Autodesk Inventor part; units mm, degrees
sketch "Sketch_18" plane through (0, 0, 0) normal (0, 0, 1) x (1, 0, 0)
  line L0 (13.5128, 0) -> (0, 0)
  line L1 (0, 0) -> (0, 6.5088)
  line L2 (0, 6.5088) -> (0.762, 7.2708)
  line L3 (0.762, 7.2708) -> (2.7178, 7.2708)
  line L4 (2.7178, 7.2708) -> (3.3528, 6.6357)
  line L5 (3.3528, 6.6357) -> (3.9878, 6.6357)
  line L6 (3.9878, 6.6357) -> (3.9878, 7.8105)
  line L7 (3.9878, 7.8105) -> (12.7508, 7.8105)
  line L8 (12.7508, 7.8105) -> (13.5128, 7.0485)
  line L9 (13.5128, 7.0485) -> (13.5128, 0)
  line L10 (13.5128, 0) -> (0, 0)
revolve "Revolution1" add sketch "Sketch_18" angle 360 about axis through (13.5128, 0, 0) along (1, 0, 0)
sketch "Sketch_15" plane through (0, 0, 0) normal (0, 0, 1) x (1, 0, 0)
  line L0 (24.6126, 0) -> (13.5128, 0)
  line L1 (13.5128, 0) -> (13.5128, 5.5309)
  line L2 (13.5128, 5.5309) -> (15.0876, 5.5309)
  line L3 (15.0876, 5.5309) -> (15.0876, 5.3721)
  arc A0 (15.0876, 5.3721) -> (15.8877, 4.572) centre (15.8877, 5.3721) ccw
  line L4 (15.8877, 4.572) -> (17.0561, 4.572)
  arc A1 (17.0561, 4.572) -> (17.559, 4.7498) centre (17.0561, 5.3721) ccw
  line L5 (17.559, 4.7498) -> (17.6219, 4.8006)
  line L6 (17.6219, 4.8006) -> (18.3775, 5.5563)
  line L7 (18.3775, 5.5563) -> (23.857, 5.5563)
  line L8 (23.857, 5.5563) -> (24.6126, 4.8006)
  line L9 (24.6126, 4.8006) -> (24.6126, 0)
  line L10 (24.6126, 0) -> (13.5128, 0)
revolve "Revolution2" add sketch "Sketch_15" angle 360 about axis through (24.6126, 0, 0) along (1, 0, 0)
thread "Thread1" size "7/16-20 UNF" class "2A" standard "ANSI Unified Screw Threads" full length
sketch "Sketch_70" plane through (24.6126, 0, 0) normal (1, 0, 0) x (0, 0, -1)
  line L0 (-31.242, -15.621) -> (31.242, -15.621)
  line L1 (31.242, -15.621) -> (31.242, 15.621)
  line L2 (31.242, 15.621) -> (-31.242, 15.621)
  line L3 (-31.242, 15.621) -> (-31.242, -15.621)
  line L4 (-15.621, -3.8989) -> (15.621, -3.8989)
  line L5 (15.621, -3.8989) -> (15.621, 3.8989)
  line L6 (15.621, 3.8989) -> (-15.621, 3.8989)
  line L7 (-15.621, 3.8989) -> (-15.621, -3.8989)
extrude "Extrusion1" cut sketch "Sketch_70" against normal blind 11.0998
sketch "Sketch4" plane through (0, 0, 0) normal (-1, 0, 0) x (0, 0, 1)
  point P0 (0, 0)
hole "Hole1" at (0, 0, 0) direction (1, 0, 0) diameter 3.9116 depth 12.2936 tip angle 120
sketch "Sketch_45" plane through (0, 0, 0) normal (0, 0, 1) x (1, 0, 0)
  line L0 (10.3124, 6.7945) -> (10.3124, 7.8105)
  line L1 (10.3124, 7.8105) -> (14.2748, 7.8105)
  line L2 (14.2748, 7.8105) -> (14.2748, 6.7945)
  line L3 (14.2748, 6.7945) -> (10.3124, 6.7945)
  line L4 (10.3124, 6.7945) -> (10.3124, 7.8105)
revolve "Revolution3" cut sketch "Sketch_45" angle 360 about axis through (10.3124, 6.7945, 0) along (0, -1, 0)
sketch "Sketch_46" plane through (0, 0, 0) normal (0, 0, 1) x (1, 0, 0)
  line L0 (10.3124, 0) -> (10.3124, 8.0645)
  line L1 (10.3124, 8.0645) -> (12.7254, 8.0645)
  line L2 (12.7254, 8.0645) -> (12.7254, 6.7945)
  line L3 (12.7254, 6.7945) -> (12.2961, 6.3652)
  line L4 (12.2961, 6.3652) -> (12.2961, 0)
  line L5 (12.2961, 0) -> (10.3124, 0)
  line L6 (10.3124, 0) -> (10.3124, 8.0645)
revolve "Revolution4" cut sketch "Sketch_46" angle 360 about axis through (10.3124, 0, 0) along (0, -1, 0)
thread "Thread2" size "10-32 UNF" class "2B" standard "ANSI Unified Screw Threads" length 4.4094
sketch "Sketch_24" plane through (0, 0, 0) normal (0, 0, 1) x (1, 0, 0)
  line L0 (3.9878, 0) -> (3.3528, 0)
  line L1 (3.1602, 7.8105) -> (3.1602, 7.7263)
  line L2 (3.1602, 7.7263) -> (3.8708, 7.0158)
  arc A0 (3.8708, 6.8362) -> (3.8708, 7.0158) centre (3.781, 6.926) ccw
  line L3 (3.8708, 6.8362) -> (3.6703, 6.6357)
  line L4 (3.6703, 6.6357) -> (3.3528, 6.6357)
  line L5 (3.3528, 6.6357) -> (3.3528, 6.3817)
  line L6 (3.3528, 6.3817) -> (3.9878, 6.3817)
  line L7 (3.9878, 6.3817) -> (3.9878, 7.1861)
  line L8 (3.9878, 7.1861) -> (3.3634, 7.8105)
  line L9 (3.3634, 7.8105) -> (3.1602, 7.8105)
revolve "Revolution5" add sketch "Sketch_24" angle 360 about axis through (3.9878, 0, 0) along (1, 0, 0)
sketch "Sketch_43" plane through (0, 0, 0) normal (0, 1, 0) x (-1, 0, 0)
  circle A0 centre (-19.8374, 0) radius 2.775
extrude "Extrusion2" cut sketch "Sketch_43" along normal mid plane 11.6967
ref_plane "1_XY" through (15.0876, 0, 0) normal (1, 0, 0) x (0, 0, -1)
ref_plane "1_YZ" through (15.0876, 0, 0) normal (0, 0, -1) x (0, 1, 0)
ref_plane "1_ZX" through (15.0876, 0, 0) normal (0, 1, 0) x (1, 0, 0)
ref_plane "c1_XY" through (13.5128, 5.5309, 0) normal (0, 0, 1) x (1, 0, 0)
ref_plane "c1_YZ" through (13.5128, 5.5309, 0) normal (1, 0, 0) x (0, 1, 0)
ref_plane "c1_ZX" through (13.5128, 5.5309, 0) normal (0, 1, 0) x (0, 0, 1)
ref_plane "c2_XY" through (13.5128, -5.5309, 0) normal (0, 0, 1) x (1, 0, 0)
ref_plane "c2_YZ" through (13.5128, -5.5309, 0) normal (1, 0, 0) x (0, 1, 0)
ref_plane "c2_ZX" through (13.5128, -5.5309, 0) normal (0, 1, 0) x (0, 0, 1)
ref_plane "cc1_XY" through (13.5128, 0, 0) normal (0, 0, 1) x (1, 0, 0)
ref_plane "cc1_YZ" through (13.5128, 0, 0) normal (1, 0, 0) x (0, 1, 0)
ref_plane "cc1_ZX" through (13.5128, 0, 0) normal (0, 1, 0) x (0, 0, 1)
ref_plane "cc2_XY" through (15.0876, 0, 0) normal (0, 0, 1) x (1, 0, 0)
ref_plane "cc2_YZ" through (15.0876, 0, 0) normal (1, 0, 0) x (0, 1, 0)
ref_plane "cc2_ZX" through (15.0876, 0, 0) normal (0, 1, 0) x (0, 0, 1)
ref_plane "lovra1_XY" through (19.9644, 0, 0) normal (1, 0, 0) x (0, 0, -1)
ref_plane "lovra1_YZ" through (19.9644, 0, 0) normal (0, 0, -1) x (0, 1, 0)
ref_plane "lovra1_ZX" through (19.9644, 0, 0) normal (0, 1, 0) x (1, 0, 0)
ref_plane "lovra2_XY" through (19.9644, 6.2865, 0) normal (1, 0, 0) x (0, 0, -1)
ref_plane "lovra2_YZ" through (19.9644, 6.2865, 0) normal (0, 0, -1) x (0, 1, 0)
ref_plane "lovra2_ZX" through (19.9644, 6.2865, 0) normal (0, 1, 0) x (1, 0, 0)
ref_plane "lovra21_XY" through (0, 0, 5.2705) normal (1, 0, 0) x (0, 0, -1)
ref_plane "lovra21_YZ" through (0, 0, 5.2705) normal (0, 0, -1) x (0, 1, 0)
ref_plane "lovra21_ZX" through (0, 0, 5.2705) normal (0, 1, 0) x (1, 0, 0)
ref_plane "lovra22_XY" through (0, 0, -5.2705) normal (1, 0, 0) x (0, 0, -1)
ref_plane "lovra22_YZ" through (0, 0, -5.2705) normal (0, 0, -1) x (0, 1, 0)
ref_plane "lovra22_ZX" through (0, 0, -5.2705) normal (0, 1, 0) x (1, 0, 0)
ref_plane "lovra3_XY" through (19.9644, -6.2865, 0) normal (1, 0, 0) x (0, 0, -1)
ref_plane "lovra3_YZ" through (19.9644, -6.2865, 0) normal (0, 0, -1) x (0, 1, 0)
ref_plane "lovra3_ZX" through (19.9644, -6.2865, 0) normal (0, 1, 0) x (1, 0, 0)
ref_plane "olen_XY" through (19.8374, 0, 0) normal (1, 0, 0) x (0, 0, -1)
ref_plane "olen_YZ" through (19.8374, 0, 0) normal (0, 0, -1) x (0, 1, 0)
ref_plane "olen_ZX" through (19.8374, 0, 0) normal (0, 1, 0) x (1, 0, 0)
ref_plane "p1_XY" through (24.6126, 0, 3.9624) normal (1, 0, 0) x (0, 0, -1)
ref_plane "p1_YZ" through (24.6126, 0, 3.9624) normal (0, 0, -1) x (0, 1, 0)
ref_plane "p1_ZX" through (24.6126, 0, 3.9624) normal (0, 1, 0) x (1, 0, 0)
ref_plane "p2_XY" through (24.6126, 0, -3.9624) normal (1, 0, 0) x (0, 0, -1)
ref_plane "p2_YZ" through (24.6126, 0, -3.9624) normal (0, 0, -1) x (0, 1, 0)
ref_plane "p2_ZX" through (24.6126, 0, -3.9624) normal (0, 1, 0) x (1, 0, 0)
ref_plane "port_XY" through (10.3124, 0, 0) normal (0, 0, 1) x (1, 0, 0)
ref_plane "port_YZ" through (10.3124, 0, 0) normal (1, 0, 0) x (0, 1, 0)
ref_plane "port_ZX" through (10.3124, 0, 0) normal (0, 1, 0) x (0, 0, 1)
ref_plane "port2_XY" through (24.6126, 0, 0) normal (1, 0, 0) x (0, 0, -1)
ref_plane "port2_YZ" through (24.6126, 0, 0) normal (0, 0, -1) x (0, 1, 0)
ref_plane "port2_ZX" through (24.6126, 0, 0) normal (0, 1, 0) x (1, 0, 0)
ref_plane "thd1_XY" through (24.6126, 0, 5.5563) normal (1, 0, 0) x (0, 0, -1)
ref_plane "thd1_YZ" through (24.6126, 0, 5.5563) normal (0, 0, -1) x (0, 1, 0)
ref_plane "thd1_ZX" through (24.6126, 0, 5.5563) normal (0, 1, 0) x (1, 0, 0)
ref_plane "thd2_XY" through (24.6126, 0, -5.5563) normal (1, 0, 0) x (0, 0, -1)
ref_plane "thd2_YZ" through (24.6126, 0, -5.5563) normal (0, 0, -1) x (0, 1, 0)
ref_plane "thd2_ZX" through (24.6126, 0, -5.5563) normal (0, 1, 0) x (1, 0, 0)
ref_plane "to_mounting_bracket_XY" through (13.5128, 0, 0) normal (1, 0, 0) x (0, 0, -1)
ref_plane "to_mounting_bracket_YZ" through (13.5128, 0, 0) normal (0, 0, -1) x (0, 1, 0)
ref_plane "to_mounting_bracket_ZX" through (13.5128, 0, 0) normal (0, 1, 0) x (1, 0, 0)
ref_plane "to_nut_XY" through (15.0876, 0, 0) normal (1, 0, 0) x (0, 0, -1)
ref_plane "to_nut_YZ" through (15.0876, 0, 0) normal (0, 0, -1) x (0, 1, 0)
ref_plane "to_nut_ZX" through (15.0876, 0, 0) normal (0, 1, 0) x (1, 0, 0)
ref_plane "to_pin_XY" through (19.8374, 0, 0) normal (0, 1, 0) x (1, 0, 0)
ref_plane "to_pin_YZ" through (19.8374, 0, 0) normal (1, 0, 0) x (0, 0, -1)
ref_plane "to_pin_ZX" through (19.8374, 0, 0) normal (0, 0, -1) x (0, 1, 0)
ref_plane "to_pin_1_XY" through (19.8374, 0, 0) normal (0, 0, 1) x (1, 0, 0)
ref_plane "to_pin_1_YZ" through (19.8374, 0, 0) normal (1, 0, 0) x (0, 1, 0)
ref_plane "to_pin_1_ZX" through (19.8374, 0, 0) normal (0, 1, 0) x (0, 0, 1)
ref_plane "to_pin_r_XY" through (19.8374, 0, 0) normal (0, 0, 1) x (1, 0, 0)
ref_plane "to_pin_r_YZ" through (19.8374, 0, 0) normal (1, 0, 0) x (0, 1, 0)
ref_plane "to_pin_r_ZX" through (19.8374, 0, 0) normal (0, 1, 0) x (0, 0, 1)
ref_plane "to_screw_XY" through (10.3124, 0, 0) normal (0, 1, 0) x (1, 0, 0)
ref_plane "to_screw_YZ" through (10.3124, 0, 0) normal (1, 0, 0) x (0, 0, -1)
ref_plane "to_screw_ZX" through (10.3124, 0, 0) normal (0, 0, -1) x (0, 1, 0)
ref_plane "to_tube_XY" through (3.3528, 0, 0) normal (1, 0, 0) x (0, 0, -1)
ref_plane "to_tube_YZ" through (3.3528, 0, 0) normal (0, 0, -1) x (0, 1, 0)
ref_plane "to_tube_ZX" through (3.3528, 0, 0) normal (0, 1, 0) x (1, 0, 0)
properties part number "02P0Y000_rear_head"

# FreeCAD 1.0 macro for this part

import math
import FreeCAD as App
import Part
import Sketcher
from FreeCAD import Vector
Q = App.Units.Quantity

doc = App.newDocument("Part")
body = doc.addObject("PartDesign::Body", "Body")

sketch1 = doc.addObject("Sketcher::SketchObject", "Sketch")
body.addObject(sketch1)
sketch1.AttachmentSupport = (doc.XY_Plane, [""])
sketch1.MapMode = "FlatFace"
sketch1.addGeometry(Part.LineSegment(Vector(0, 0, 0), Vector(13.5, 0, 0)), False)
sketch1.addGeometry(Part.LineSegment(Vector(13.5, 0, 0), Vector(13.5, 7, 0)), False)
sketch1.addGeometry(Part.LineSegment(Vector(13.5, 7, 0), Vector(12.8, 7.8, 0)), False)
sketch1.addGeometry(Part.LineSegment(Vector(12.8, 7.8, 0), Vector(4, 7.8, 0)), False)
sketch1.addGeometry(Part.LineSegment(Vector(4, 7.8, 0), Vector(4, 6.6, 0)), False)
sketch1.addGeometry(Part.LineSegment(Vector(4, 6.6, 0), Vector(3.4, 6.6, 0)), False)
sketch1.addGeometry(Part.LineSegment(Vector(3.4, 6.6, 0), Vector(2.7, 7.3, 0)), False)
sketch1.addGeometry(Part.LineSegment(Vector(2.7, 7.3, 0), Vector(0.8, 7.3, 0)), False)
sketch1.addGeometry(Part.LineSegment(Vector(0.8, 7.3, 0), Vector(0, 6.5, 0)), False)
sketch1.addGeometry(Part.LineSegment(Vector(0, 6.5, 0), Vector(0, 0, 0)), False)
sketch1.addConstraint(Sketcher.Constraint("Coincident", 0, 2, 1, 1))
sketch1.addConstraint(Sketcher.Constraint("Coincident", 1, 2, 2, 1))
sketch1.addConstraint(Sketcher.Constraint("Coincident", 2, 2, 3, 1))
sketch1.addConstraint(Sketcher.Constraint("Coincident", 3, 2, 4, 1))
sketch1.addConstraint(Sketcher.Constraint("Coincident", 4, 2, 5, 1))
sketch1.addConstraint(Sketcher.Constraint("Coincident", 5, 2, 6, 1))
sketch1.addConstraint(Sketcher.Constraint("Coincident", 6, 2, 7, 1))
sketch1.addConstraint(Sketcher.Constraint("Coincident", 7, 2, 8, 1))
sketch1.addConstraint(Sketcher.Constraint("Coincident", 8, 2, 9, 1))
sketch1.addConstraint(Sketcher.Constraint("Coincident", 9, 2, 0, 1))
sketch1.addConstraint(Sketcher.Constraint("Horizontal", 0))
sketch1.addConstraint(Sketcher.Constraint("Vertical", 1))
sketch1.addConstraint(Sketcher.Constraint("Horizontal", 3))
sketch1.addConstraint(Sketcher.Constraint("Vertical", 4))
sketch1.addConstraint(Sketcher.Constraint("Horizontal", 5))
sketch1.addConstraint(Sketcher.Constraint("Horizontal", 7))
sketch1.addConstraint(Sketcher.Constraint("Vertical", 9))
sketch1.addConstraint(Sketcher.Constraint("Coincident", 9, 2, -1, 1))
sketch1.addConstraint(Sketcher.Constraint("Parallel", 2, 6))
sketch1.addConstraint(Sketcher.Constraint("Perpendicular", 6, 8))
sketch1.addConstraint(Sketcher.Constraint("Equal", 2, 8))
sketch1.addConstraint(Sketcher.Constraint("Angle", 2, Q("135 deg")))
sketch1.addConstraint(Sketcher.Constraint("DistanceX", 5, 2, 1, 2, Q("0.4 in")))
sketch1.addConstraint(Sketcher.Constraint("DistanceX", 0, 1, 0, 2, Q("0.532 in")))
sketch1.addConstraint(Sketcher.Constraint("DistanceX", 3, 2, 3, 1, Q("0.345 in")))
sketch1.addConstraint(Sketcher.Constraint("DistanceX", 5, 2, 5, 1, Q("0.025 in")))
sketch1.addConstraint(Sketcher.Constraint("DistanceX", 7, 2, 7, 1, Q("0.077 in")))
sketch1.addConstraint(Sketcher.Constraint("DistanceY", 1, 1, 1, 2, Q("0.2775 in")))
sketch1.addConstraint(Sketcher.Constraint("DistanceY", 4, 2, 4, 1, 1.1748))
revolution = doc.addObject("PartDesign::Revolution", "Revolution")
body.addObject(revolution)
revolution.Profile = sketch1
revolution.ReferenceAxis = (sketch1, ["H_Axis"])
revolution.Angle = 360

sketch2 = doc.addObject("Sketcher::SketchObject", "Sketch001")
body.addObject(sketch2)
sketch2.AttachmentSupport = (doc.XY_Plane, [""])
sketch2.MapMode = "FlatFace"
sketch2.addGeometry(Part.LineSegment(Vector(13.51, 0, 0), Vector(24.61, 0, 0)), False)
sketch2.addGeometry(Part.LineSegment(Vector(24.61, 0, 0), Vector(24.61, 4.8, 0)), False)
sketch2.addGeometry(Part.LineSegment(Vector(24.61, 4.8, 0), Vector(23.86, 5.56, 0)), False)
sketch2.addGeometry(Part.LineSegment(Vector(23.86, 5.56, 0), Vector(18.38, 5.56, 0)), False)
sketch2.addGeometry(Part.LineSegment(Vector(18.38, 5.56, 0), Vector(17.62, 4.8, 0)), False)
sketch2.addGeometry(Part.LineSegment(Vector(17.62, 4.8, 0), Vector(17.56, 4.75, 0)), False)
sketch2.addGeometry(Part.ArcOfCircle(Part.Circle(Vector(17.06, 5.37, 0), Vector(0, 0, 1), 0.8), math.radians(-90), math.radians(-51)), False)
sketch2.addGeometry(Part.LineSegment(Vector(17.06, 4.57, 0), Vector(15.89, 4.57, 0)), False)
sketch2.addGeometry(Part.ArcOfCircle(Part.Circle(Vector(15.89, 5.37, 0), Vector(0, 0, 1), 0.8), math.radians(180), math.radians(270)), False)
sketch2.addGeometry(Part.LineSegment(Vector(15.09, 5.37, 0), Vector(15.09, 5.53, 0)), False)
sketch2.addGeometry(Part.LineSegment(Vector(15.09, 5.53, 0), Vector(13.51, 5.53, 0)), False)
sketch2.addGeometry(Part.LineSegment(Vector(13.51, 5.53, 0), Vector(13.51, 0, 0)), False)
sketch2.addConstraint(Sketcher.Constraint("Coincident", 0, 2, 1, 1))
sketch2.addConstraint(Sketcher.Constraint("Coincident", 1, 2, 2, 1))
sketch2.addConstraint(Sketcher.Constraint("Coincident", 2, 2, 3, 1))
sketch2.addConstraint(Sketcher.Constraint("Coincident", 3, 2, 4, 1))
sketch2.addConstraint(Sketcher.Constraint("Coincident", 4, 2, 5, 1))
sketch2.addConstraint(Sketcher.Constraint("Tangent", 5, 2, 6, 2))
sketch2.addConstraint(Sketcher.Constraint("Tangent", 6, 1, 7, 1))
sketch2.addConstraint(Sketcher.Constraint("Tangent", 7, 2, 8, 2))
sketch2.addConstraint(Sketcher.Constraint("Tangent", 8, 1, 9, 1))
sketch2.addConstraint(Sketcher.Constraint("Coincident", 9, 2, 10, 1))
sketch2.addConstraint(Sketcher.Constraint("Coincident", 10, 2, 11, 1))
sketch2.addConstraint(Sketcher.Constraint("Coincident", 11, 2, 0, 1))
sketch2.addConstraint(Sketcher.Constraint("Horizontal", 0))
sketch2.addConstraint(Sketcher.Constraint("Vertical", 1))
sketch2.addConstraint(Sketcher.Constraint("Horizontal", 3))
sketch2.addConstraint(Sketcher.Constraint("Horizontal", 7))
sketch2.addConstraint(Sketcher.Constraint("Vertical", 9))
sketch2.addConstraint(Sketcher.Constraint("Horizontal", 10))
sketch2.addConstraint(Sketcher.Constraint("Vertical", 11))
sketch2.addConstraint(Sketcher.Constraint("Equal", 6, 8))
sketch2.addConstraint(Sketcher.Constraint("PointOnObject", 0, 2, -1))
sketch2.addConstraint(Sketcher.Constraint("Perpendicular", 2, 4))
sketch2.addConstraint(Sketcher.Constraint("Horizontal", 1, 2, 4, 2))
sketch2.addConstraint(Sketcher.Constraint("Equal", 2, 4))
sketch2.addConstraint(Sketcher.Constraint("Radius", 6, Q("0.0315 in")))
sketch2.addConstraint(Sketcher.Constraint("DistanceX", 0, 1, 0, 2, Q("0.437 in")))
sketch2.addConstraint(Sketcher.Constraint("DistanceX", 7, 2, 7, 1, Q("0.046 in")))
sketch2.addConstraint(Sketcher.Constraint("DistanceX", 10, 2, 10, 1, Q("0.062 in")))
sketch2.addConstraint(Sketcher.Constraint("DistanceY", 1, 1, 1, 2, Q("0.189 in")))
sketch2.addConstraint(Sketcher.Constraint("DistanceY", -1, 1, 6, 1, Q("0.18 in")))
sketch2.addConstraint(Sketcher.Constraint("DistanceX", -1, 1, 0, 2, Q("0.969 in")))
sketch2.addConstraint(Sketcher.Constraint("DistanceY", -1, 1, 2, 2, Q("0.218752 in")))
sketch2.addConstraint(Sketcher.Constraint("DistanceY", -1, 1, 5, 2, Q("0.187 in")))
sketch2.addConstraint(Sketcher.Constraint("DistanceY", 9, 1, 9, 2, 0.1588))
revolution2 = doc.addObject("PartDesign::Revolution", "Revolution001")
body.addObject(revolution2)
revolution2.Profile = sketch2
revolution2.ReferenceAxis = (sketch2, ["H_Axis"])
revolution2.Angle = 360

sketch3 = doc.addObject("Sketcher::SketchObject", "Sketch002")
body.addObject(sketch3)
sketch3.AttachmentSupport = (doc.YZ_Plane, [""])
sketch3.MapMode = "FlatFace"
sketch3.AttachmentOffset = App.Placement(Vector(0, 0, 0.969 * 25.4), App.Rotation())
sketch3.addGeometry(Part.LineSegment(Vector(16, 31, 0), Vector(-16, 31, 0)), False)
sketch3.addGeometry(Part.LineSegment(Vector(-16, 31, 0), Vector(-16, -31, 0)), False)
sketch3.addGeometry(Part.LineSegment(Vector(-16, -31, 0), Vector(16, -31, 0)), False)
sketch3.addGeometry(Part.LineSegment(Vector(16, -31, 0), Vector(16, 31, 0)), False)
sketch3.addGeometry(Part.LineSegment(Vector(-4, -16, 0), Vector(-4, 16, 0)), False)
sketch3.addGeometry(Part.LineSegment(Vector(-4, 16, 0), Vector(4, 16, 0)), False)
sketch3.addGeometry(Part.LineSegment(Vector(4, 16, 0), Vector(4, -16, 0)), False)
sketch3.addGeometry(Part.LineSegment(Vector(4, -16, 0), Vector(-4, -16, 0)), False)
sketch3.addConstraint(Sketcher.Constraint("Coincident", 0, 2, 1, 1))
sketch3.addConstraint(Sketcher.Constraint("Coincident", 1, 2, 2, 1))
sketch3.addConstraint(Sketcher.Constraint("Coincident", 2, 2, 3, 1))
sketch3.addConstraint(Sketcher.Constraint("Coincident", 3, 2, 0, 1))
sketch3.addConstraint(Sketcher.Constraint("Coincident", 4, 2, 5, 1))
sketch3.addConstraint(Sketcher.Constraint("Coincident", 5, 2, 6, 1))
sketch3.addConstraint(Sketcher.Constraint("Coincident", 6, 2, 7, 1))
sketch3.addConstraint(Sketcher.Constraint("Coincident", 7, 2, 4, 1))
sketch3.addConstraint(Sketcher.Constraint("Horizontal", 0))
sketch3.addConstraint(Sketcher.Constraint("Vertical", 1))
sketch3.addConstraint(Sketcher.Constraint("Horizontal", 2))
sketch3.addConstraint(Sketcher.Constraint("Vertical", 3))
sketch3.addConstraint(Sketcher.Constraint("Vertical", 4))
sketch3.addConstraint(Sketcher.Constraint("Horizontal", 5))
sketch3.addConstraint(Sketcher.Constraint("Vertical", 6))
sketch3.addConstraint(Sketcher.Constraint("Horizontal", 7))
sketch3.addConstraint(Sketcher.Constraint("Symmetric", 0, 2, 2, 2, -1, 1))
sketch3.addConstraint(Sketcher.Constraint("Symmetric", 4, 2, 6, 2, -1, 1))
sketch3.addConstraint(Sketcher.Constraint("Equal", 2, 4))
sketch3.addConstraint(Sketcher.Constraint("DistanceX", 0, 2, 0, 1, Q("1.23 in")))
sketch3.addConstraint(Sketcher.Constraint("DistanceY", 1, 2, 1, 1, Q("2.46 in")))
sketch3.addConstraint(Sketcher.Constraint("DistanceX", 5, 1, 5, 2, Q("0.307 in")))
pocket1 = doc.addObject("PartDesign::Pocket", "Pocket")
body.addObject(pocket1)
pocket1.Profile = sketch3
pocket1.Length = Q("0.437 in")

sketch4 = doc.addObject("Sketcher::SketchObject", "Sketch003")
body.addObject(sketch4)
sketch4.AttachmentSupport = (doc.YZ_Plane, [""])
sketch4.MapMode = "FlatFace"
sketch4.addGeometry(Part.Circle(Vector(0, 0, 0), Vector(0, 0, 1), 2), False)
sketch4.addConstraint(Sketcher.Constraint("Coincident", 0, 3, -1, 1))
sketch4.addConstraint(Sketcher.Constraint("Diameter", 0, Q("0.154 in")))
doc.recompute()
hole = doc.addObject("PartDesign::Hole", "Hole")
body.addObject(hole)
hole.Profile = sketch4
hole.ThreadType = "None"
hole.Diameter = Q("0.154 in")
hole.DepthType = "Dimension"
hole.Depth = Q("0.484 in")
hole.DrillPoint = "Angled"
hole.DrillPointAngle = 120
hole.Reversed = True

sketch5 = doc.addObject("Sketcher::SketchObject", "Sketch004")
body.addObject(sketch5)
sketch5.AttachmentSupport = (doc.XY_Plane, [""])
sketch5.MapMode = "FlatFace"
sketch5.addGeometry(Part.LineSegment(Vector(10.3, 7.8, 0), Vector(10.3, 6.8, 0)), False)
sketch5.addGeometry(Part.LineSegment(Vector(10.3, 6.8, 0), Vector(14.3, 6.8, 0)), False)
sketch5.addGeometry(Part.LineSegment(Vector(14.3, 6.8, 0), Vector(14.3, 7.8, 0)), False)
sketch5.addGeometry(Part.LineSegment(Vector(14.3, 7.8, 0), Vector(10.3, 7.8, 0)), False)
sketch5.addGeometry(Part.LineSegment(Vector(10.3, 7.8, 0), Vector(10.3, 6.8, 0)), True)
sketch5.addConstraint(Sketcher.Constraint("Coincident", 0, 2, 1, 1))
sketch5.addConstraint(Sketcher.Constraint("Coincident", 1, 2, 2, 1))
sketch5.addConstraint(Sketcher.Constraint("Coincident", 2, 2, 3, 1))
sketch5.addConstraint(Sketcher.Constraint("Coincident", 3, 2, 0, 1))
sketch5.addConstraint(Sketcher.Constraint("Vertical", 0))
sketch5.addConstraint(Sketcher.Constraint("Horizontal", 1))
sketch5.addConstraint(Sketcher.Constraint("Vertical", 2))
sketch5.addConstraint(Sketcher.Constraint("Horizontal", 3))
sketch5.addConstraint(Sketcher.Constraint("Vertical", 4))
sketch5.addConstraint(Sketcher.Constraint("Coincident", 4, 1, 3, 2))
sketch5.addConstraint(Sketcher.Constraint("Horizontal", 1, 2, 4, 2))
sketch5.addConstraint(Sketcher.Constraint("DistanceY", 0, 2, 0, 1, Q("0.04 in")))
sketch5.addConstraint(Sketcher.Constraint("DistanceX", 1, 1, 1, 2, Q("0.156 in")))
sketch5.addConstraint(Sketcher.Constraint("DistanceX", -1, 1, 0, 2, Q("0.406 in")))
sketch5.addConstraint(Sketcher.Constraint("DistanceY", -1, 1, 0, 2, Q("0.2675 in")))
groove = doc.addObject("PartDesign::Groove", "Groove")
body.addObject(groove)
groove.Profile = sketch5
groove.ReferenceAxis = (sketch5, ["Axis0"])
groove.Angle = 360

sketch6 = doc.addObject("Sketcher::SketchObject", "Sketch005")
body.addObject(sketch6)
sketch6.AttachmentSupport = (doc.XY_Plane, [""])
sketch6.MapMode = "FlatFace"
sketch6.addGeometry(Part.LineSegment(Vector(10.3, 8.1, 0), Vector(10.3, 0, 0)), False)
sketch6.addGeometry(Part.LineSegment(Vector(10.3, 0, 0), Vector(12.3, 0, 0)), False)
sketch6.addGeometry(Part.LineSegment(Vector(12.3, 0, 0), Vector(12.3, 6.4, 0)), False)
sketch6.addGeometry(Part.LineSegment(Vector(12.3, 6.4, 0), Vector(12.7, 6.8, 0)), False)
sketch6.addGeometry(Part.LineSegment(Vector(12.7, 6.8, 0), Vector(12.7, 8.1, 0)), False)
sketch6.addGeometry(Part.LineSegment(Vector(12.7, 8.1, 0), Vector(10.3, 8.1, 0)), False)
sketch6.addGeometry(Part.LineSegment(Vector(10.3, 8.1, 0), Vector(10.3, 0, 0)), True)
sketch6.addConstraint(Sketcher.Constraint("Coincident", 0, 2, 1, 1))
sketch6.addConstraint(Sketcher.Constraint("Coincident", 1, 2, 2, 1))
sketch6.addConstraint(Sketcher.Constraint("Coincident", 2, 2, 3, 1))
sketch6.addConstraint(Sketcher.Constraint("Coincident", 3, 2, 4, 1))
sketch6.addConstraint(Sketcher.Constraint("Coincident", 4, 2, 5, 1))
sketch6.addConstraint(Sketcher.Constraint("Coincident", 5, 2, 0, 1))
sketch6.addConstraint(Sketcher.Constraint("Vertical", 0))
sketch6.addConstraint(Sketcher.Constraint("Horizontal", 1))
sketch6.addConstraint(Sketcher.Constraint("Vertical", 2))
sketch6.addConstraint(Sketcher.Constraint("Vertical", 4))
sketch6.addConstraint(Sketcher.Constraint("Horizontal", 5))
sketch6.addConstraint(Sketcher.Constraint("Vertical", 6))
sketch6.addConstraint(Sketcher.Constraint("Coincident", 6, 1, 5, 2))
sketch6.addConstraint(Sketcher.Constraint("PointOnObject", 0, 2, -1))
sketch6.addConstraint(Sketcher.Constraint("PointOnObject", 6, 2, -1))
sketch6.addConstraint(Sketcher.Constraint("Angle", 3, Q("45 deg")))
sketch6.addConstraint(Sketcher.Constraint("DistanceY", 4, 1, 4, 2, Q("0.05 in")))
sketch6.addConstraint(Sketcher.Constraint("DistanceX", 5, 2, 5, 1, Q("0.095 in")))
sketch6.addConstraint(Sketcher.Constraint("DistanceX", 1, 1, 1, 2, Q("0.0781 in")))
sketch6.addConstraint(Sketcher.Constraint("DistanceY", 0, 2, 0, 1, Q("0.3175 in")))
sketch6.addConstraint(Sketcher.Constraint("DistanceX", -1, 1, 0, 2, Q("0.406 in")))
groove2 = doc.addObject("PartDesign::Groove", "Groove001")
body.addObject(groove2)
groove2.Profile = sketch6
groove2.ReferenceAxis = (sketch6, ["Axis0"])
groove2.Angle = 360

sketch7 = doc.addObject("Sketcher::SketchObject", "Sketch006")
body.addObject(sketch7)
sketch7.AttachmentSupport = (doc.XY_Plane, [""])
sketch7.MapMode = "FlatFace"
sketch7.addGeometry(Part.LineSegment(Vector(3.36, 7.81, 0), Vector(3.16, 7.81, 0)), False)
sketch7.addGeometry(Part.LineSegment(Vector(3.16, 7.81, 0), Vector(3.16, 7.73, 0)), False)
sketch7.addGeometry(Part.LineSegment(Vector(3.16, 7.73, 0), Vector(3.87, 7.02, 0)), False)
sketch7.addGeometry(Part.ArcOfCircle(Part.Circle(Vector(3.78, 6.93, 0), Vector(0, 0, 1), 0.13), math.radians(-45), math.radians(45)), False)
sketch7.addGeometry(Part.LineSegment(Vector(3.87, 6.84, 0), Vector(3.67, 6.64, 0)), False)
sketch7.addGeometry(Part.LineSegment(Vector(3.67, 6.64, 0), Vector(3.35, 6.64, 0)), False)
sketch7.addGeometry(Part.LineSegment(Vector(3.35, 6.64, 0), Vector(3.35, 6.38, 0)), False)
sketch7.addGeometry(Part.LineSegment(Vector(3.35, 6.38, 0), Vector(3.99, 6.38, 0)), False)
sketch7.addGeometry(Part.LineSegment(Vector(3.99, 6.38, 0), Vector(3.99, 7.19, 0)), False)
sketch7.addGeometry(Part.LineSegment(Vector(3.99, 7.19, 0), Vector(3.36, 7.81, 0)), False)
sketch7.addConstraint(Sketcher.Constraint("Coincident", 0, 2, 1, 1))
sketch7.addConstraint(Sketcher.Constraint("Coincident", 1, 2, 2, 1))
sketch7.addConstraint(Sketcher.Constraint("Tangent", 2, 2, 3, 2))
sketch7.addConstraint(Sketcher.Constraint("Tangent", 3, 1, 4, 1))
sketch7.addConstraint(Sketcher.Constraint("Coincident", 4, 2, 5, 1))
sketch7.addConstraint(Sketcher.Constraint("Coincident", 5, 2, 6, 1))
sketch7.addConstraint(Sketcher.Constraint("Coincident", 6, 2, 7, 1))
sketch7.addConstraint(Sketcher.Constraint("Coincident", 7, 2, 8, 1))
sketch7.addConstraint(Sketcher.Constraint("Coincident", 8, 2, 9, 1))
sketch7.addConstraint(Sketcher.Constraint("Coincident", 9, 2, 0, 1))
sketch7.addConstraint(Sketcher.Constraint("Horizontal", 0))
sketch7.addConstraint(Sketcher.Constraint("Vertical", 1))
sketch7.addConstraint(Sketcher.Constraint("Horizontal", 5))
sketch7.addConstraint(Sketcher.Constraint("Vertical", 6))
sketch7.addConstraint(Sketcher.Constraint("Horizontal", 7))
sketch7.addConstraint(Sketcher.Constraint("Vertical", 8))
sketch7.addConstraint(Sketcher.Constraint("Perpendicular", 2, 4))
sketch7.addConstraint(Sketcher.Constraint("Perpendicular", 4, 9))
sketch7.addConstraint(Sketcher.Constraint("Vertical", 2, 2, 3, 1))
sketch7.addConstraint(Sketcher.Constraint("Radius", 3, Q("0.005 in")))
sketch7.addConstraint(Sketcher.Constraint("DistanceY", 6, 2, 6, 1, Q("0.01 in")))
sketch7.addConstraint(Sketcher.Constraint("DistanceX", 0, 2, 0, 1, Q("0.008 in")))
sketch7.addConstraint(Sketcher.Constraint("DistanceX", 7, 1, 7, 2, Q("0.025 in")))
sketch7.addConstraint(Sketcher.Constraint("DistanceX", 5, 2, 5, 1, Q("0.0125 in")))
sketch7.addConstraint(Sketcher.Constraint("DistanceX", -1, 1, 5, 2, Q("0.132 in")))
sketch7.addConstraint(Sketcher.Constraint("DistanceY", 1, 2, 1, 1, 0.0842))
sketch7.addConstraint(Sketcher.Constraint("DistanceY", 8, 1, 8, 2, 0.8044))
sketch7.addConstraint(Sketcher.Constraint("DistanceY", -1, 1, 0, 2, Q("0.3075 in")))
sketch7.addConstraint(Sketcher.Constraint("DistanceY", 3, 3, 1, 2, Q("0.0315 in")))
revolution3 = doc.addObject("PartDesign::Revolution", "Revolution002")
body.addObject(revolution3)
revolution3.Profile = sketch7
revolution3.ReferenceAxis = (sketch7, ["H_Axis"])
revolution3.Angle = 360

sketch8 = doc.addObject("Sketcher::SketchObject", "Sketch007")
body.addObject(sketch8)
sketch8.AttachmentSupport = (doc.XZ_Plane, [""])
sketch8.MapMode = "FlatFace"
sketch8.addGeometry(Part.Circle(Vector(19.8, 0, 0), Vector(0, 0, 1), 2.8), False)
sketch8.addConstraint(Sketcher.Constraint("PointOnObject", 0, 3, -1))
sketch8.addConstraint(Sketcher.Constraint("Diameter", 0, Q("0.2185 in")))
sketch8.addConstraint(Sketcher.Constraint("DistanceX", -1, 1, 0, 3, Q("0.781 in")))
pocket2 = doc.addObject("PartDesign::Pocket", "Pocket001")
body.addObject(pocket2)
pocket2.Profile = sketch8
pocket2.Length = Q("0.4605 in")
pocket2.Midplane = True

doc.recompute()
